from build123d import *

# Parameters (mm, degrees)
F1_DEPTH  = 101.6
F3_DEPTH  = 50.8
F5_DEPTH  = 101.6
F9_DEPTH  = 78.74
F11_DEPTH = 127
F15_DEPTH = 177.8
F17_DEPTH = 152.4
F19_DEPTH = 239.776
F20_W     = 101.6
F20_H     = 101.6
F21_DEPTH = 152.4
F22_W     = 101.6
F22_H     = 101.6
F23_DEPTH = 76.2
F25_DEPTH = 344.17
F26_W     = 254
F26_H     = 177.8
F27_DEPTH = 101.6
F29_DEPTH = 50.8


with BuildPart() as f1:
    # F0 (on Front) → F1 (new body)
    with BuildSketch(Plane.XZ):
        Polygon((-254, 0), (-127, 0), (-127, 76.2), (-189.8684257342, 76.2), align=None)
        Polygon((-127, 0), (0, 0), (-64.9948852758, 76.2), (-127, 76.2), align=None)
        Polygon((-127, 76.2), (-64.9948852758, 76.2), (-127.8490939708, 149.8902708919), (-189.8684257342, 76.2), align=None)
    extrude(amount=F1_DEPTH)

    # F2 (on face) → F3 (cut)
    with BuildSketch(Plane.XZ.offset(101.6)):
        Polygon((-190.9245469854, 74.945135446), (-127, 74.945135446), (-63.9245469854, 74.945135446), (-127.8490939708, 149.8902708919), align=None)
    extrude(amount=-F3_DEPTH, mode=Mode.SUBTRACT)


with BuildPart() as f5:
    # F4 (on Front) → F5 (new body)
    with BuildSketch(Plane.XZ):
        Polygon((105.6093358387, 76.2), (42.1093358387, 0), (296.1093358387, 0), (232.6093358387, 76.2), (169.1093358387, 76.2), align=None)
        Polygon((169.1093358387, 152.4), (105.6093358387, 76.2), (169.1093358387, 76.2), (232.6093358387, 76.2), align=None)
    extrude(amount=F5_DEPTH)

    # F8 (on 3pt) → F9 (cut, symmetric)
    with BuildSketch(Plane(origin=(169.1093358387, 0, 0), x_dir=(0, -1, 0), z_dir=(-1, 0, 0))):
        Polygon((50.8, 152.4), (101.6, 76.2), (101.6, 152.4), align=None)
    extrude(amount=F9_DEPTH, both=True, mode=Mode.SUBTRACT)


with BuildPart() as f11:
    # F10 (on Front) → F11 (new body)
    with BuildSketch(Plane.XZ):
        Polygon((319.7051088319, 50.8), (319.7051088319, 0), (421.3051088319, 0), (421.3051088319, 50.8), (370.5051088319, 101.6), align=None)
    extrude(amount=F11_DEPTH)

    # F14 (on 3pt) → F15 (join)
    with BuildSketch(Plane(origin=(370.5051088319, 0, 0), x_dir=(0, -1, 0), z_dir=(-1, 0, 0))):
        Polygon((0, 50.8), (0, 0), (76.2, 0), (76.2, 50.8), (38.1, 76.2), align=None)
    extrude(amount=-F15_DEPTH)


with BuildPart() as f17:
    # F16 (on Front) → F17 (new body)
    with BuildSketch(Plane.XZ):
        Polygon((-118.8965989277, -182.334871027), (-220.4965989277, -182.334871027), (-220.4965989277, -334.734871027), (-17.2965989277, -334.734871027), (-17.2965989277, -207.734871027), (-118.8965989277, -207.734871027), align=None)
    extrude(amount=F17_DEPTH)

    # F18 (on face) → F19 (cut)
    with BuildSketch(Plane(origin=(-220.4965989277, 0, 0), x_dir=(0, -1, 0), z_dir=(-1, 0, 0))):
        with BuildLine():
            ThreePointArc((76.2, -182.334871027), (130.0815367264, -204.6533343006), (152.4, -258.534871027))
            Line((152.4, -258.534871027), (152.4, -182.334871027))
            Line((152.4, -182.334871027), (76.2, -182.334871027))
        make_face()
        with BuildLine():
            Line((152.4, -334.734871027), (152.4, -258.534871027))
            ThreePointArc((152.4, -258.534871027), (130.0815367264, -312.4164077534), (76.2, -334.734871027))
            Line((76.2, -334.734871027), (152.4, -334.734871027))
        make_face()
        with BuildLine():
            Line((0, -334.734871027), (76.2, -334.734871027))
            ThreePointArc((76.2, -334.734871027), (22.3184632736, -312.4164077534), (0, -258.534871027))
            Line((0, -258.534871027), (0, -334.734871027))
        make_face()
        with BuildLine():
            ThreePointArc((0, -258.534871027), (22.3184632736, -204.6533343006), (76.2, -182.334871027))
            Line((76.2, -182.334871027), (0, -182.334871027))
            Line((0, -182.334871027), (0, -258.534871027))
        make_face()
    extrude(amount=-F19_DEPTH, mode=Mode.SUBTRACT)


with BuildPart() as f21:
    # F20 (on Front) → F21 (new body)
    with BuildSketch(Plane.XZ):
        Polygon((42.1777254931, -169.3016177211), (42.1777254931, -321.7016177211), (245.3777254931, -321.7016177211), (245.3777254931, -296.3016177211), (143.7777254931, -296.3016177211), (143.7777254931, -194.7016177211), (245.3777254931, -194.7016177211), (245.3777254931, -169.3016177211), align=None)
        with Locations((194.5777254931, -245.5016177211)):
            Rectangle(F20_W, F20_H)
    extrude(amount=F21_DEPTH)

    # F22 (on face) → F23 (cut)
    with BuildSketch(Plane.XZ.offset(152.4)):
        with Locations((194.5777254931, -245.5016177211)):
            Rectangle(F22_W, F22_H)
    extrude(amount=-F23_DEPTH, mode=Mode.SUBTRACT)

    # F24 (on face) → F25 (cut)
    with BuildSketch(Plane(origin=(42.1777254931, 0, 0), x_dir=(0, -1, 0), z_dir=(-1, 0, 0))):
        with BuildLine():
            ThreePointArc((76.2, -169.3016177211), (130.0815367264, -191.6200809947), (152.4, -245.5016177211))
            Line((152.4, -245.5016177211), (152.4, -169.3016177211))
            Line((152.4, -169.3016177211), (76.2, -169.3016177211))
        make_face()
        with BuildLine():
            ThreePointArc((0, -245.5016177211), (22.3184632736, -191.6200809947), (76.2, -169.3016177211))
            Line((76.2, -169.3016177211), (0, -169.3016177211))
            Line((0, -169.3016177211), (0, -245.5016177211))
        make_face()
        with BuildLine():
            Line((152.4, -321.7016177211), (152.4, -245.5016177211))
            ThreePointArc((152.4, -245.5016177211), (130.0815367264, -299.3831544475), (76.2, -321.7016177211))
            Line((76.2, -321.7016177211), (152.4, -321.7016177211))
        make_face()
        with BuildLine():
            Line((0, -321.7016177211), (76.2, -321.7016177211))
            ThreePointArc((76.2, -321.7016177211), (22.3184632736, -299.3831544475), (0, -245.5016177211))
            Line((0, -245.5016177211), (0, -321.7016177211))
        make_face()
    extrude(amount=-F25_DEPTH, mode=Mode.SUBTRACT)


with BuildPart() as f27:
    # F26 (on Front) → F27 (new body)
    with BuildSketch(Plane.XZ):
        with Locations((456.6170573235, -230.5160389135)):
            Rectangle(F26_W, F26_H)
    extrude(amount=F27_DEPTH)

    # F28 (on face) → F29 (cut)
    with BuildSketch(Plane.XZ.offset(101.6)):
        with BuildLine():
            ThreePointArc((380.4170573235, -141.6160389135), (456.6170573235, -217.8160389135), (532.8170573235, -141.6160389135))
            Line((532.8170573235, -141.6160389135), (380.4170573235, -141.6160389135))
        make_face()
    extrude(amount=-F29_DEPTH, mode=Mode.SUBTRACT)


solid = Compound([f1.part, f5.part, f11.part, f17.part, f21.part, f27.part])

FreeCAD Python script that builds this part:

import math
import FreeCAD as App
import Part
import Sketcher

V = App.Vector
Q = App.Units.Quantity

doc = App.newDocument("Part")
body = doc.addObject("PartDesign::Body", "Body")

# Sketch on XZ plane
sketch1 = body.newObject("Sketcher::SketchObject", "Sketch")
sketch1.AttachmentSupport = (doc.getObject("XZ_Plane"), [""])
sketch1.MapMode = "FlatFace"
sketch1.addGeometry([
    Part.LineSegment(V(-254, 0, 0), V(0, 0, 0)),
    Part.LineSegment(V(0, 0, 0), V(-128, 150, 0)),
    Part.LineSegment(V(-128, 150, 0), V(-254, 0, 0)),
], False)
sketch1.addConstraint([
    Sketcher.Constraint("Coincident", 0, 2, 1, 1),
    Sketcher.Constraint("Coincident", 1, 2, 2, 1),
    Sketcher.Constraint("Coincident", 2, 2, 0, 1),
    Sketcher.Constraint("Horizontal", 0),
    Sketcher.Constraint("Coincident", 0, 2, -1, 1),
    Sketcher.Constraint("DistanceX", 0, 1, 0, 2, Q("10 in")),
    Sketcher.Constraint("DistanceY", -1, 1, 1, 2, Q("149.890271 mm")),
    Sketcher.Constraint("Distance", 1, Q("197.008843 mm")),
])
pad1 = body.newObject("PartDesign::Pad", "Pad")
pad1.Profile = sketch1
pad1.Length = Q("4 in")

# Sketch on XZ plane
sketch2 = body.newObject("Sketcher::SketchObject", "Sketch001")
sketch2.AttachmentSupport = (doc.getObject("XZ_Plane"), [""])
sketch2.MapMode = "FlatFace"
sketch2.AttachmentOffset = App.Placement(V(0, 0, 4 * 25.4), App.Rotation())
sketch2.addGeometry([
    Part.LineSegment(V(-191, 75, 0), V(-64, 75, 0)),
    Part.LineSegment(V(-64, 75, 0), V(-128, 150, 0)),
    Part.LineSegment(V(-128, 150, 0), V(-191, 75, 0)),
], False)
sketch2.addConstraint([
    Sketcher.Constraint("Coincident", 0, 2, 1, 1),
    Sketcher.Constraint("Coincident", 1, 2, 2, 1),
    Sketcher.Constraint("Coincident", 2, 2, 0, 1),
    Sketcher.Constraint("Horizontal", 0),
    Sketcher.Constraint("DistanceX", 0, 1, 0, 2, Q("5 in")),
    Sketcher.Constraint("Distance", 1, Q("98.504421 mm")),
    Sketcher.Constraint("Distance", 2, Q("97.955531 mm")),
    Sketcher.Constraint("DistanceY", -1, 1, 1, 2, Q("149.890271 mm")),
    Sketcher.Constraint("DistanceX", 0, 2, -1, 1, Q("63.924547 mm")),
])
pocket1 = body.newObject("PartDesign::Pocket", "Pocket")
pocket1.Profile = sketch2
pocket1.Length = Q("2 in")
body2 = doc.addObject("PartDesign::Body", "Body001")

# Sketch on XZ plane
sketch3 = body2.newObject("Sketcher::SketchObject", "Sketch002")
sketch3.AttachmentSupport = (doc.getObject("XZ_Plane001"), [""])
sketch3.MapMode = "FlatFace"
sketch3.addGeometry([
    Part.LineSegment(V(42, 0, 0), V(296, 0, 0)),
    Part.LineSegment(V(296, 0, 0), V(169, 152, 0)),
    Part.LineSegment(V(169, 152, 0), V(42, 0, 0)),
], False)
sketch3.addConstraint([
    Sketcher.Constraint("Coincident", 0, 2, 1, 1),
    Sketcher.Constraint("Coincident", 1, 2, 2, 1),
    Sketcher.Constraint("Coincident", 2, 2, 0, 1),
    Sketcher.Constraint("Horizontal", 0),
    Sketcher.Constraint("PointOnObject", 0, 2, -1),
    Sketcher.Constraint("Equal", 1, 2),
    Sketcher.Constraint("DistanceX", 0, 1, 0, 2, Q("10 in")),
    Sketcher.Constraint("DistanceY", -1, 1, 1, 2, Q("6 in")),
    Sketcher.Constraint("DistanceX", -1, 1, 0, 2, Q("296.109336 mm")),
])
pad2 = body2.newObject("PartDesign::Pad", "Pad001")
pad2.Profile = sketch3
pad2.Length = Q("4 in")

# Sketch on YZ plane
sketch4 = body2.newObject("Sketcher::SketchObject", "Sketch003")
sketch4.AttachmentSupport = (doc.getObject("YZ_Plane001"), [""])
sketch4.MapMode = "FlatFace"
sketch4.AttachmentOffset = App.Placement(V(0, 0, 169.109336), App.Rotation())
sketch4.addGeometry([
    Part.LineSegment(V(-51, 152, 0), V(-102, 76, 0)),
    Part.LineSegment(V(-102, 76, 0), V(-102, 152, 0)),
    Part.LineSegment(V(-102, 152, 0), V(-51, 152, 0)),
], False)
sketch4.addConstraint([
    Sketcher.Constraint("Coincident", 0, 2, 1, 1),
    Sketcher.Constraint("Coincident", 1, 2, 2, 1),
    Sketcher.Constraint("Coincident", 2, 2, 0, 1),
    Sketcher.Constraint("Vertical", 1),
    Sketcher.Constraint("Horizontal", 2),
    Sketcher.Constraint("DistanceX", 2, 1, 2, 2, Q("2 in")),
    Sketcher.Constraint("DistanceY", 1, 1, 1, 2, Q("3 in")),
    Sketcher.Constraint("DistanceX", 0, 2, -1, 1, Q("4 in")),
    Sketcher.Constraint("DistanceY", -1, 1, 0, 2, Q("3 in")),
])
pocket2 = body2.newObject("PartDesign::Pocket", "Pocket001")
pocket2.Profile = sketch4
pocket2.Length = Q("6.2 in")
pocket2.Midplane = True
body3 = doc.addObject("PartDesign::Body", "Body002")

# Sketch on XZ plane
sketch5 = body3.newObject("Sketcher::SketchObject", "Sketch004")
sketch5.AttachmentSupport = (doc.getObject("XZ_Plane002"), [""])
sketch5.MapMode = "FlatFace"
sketch5.addGeometry([
    Part.LineSegment(V(320, 51, 0), V(320, 0, 0)),  # 0
    Part.LineSegment(V(320, 0, 0), V(421, 0, 0)),  # 1
    Part.LineSegment(V(421, 0, 0), V(421, 51, 0)),  # 2
    Part.LineSegment(V(421, 51, 0), V(371, 102, 0)),  # 3
    Part.LineSegment(V(371, 102, 0), V(320, 51, 0)),  # 4
], False)
sketch5.addConstraint([
    Sketcher.Constraint("Coincident", 0, 2, 1, 1),
    Sketcher.Constraint("Coincident", 1, 2, 2, 1),
    Sketcher.Constraint("Coincident", 2, 2, 3, 1),
    Sketcher.Constraint("Coincident", 3, 2, 4, 1),
    Sketcher.Constraint("Coincident", 4, 2, 0, 1),
    Sketcher.Constraint("Vertical", 0),
    Sketcher.Constraint("Horizontal", 1),
    Sketcher.Constraint("Vertical", 2),
    Sketcher.Constraint("PointOnObject", 0, 2, -1),
    Sketcher.Constraint("Perpendicular", 3, 4),
    Sketcher.Constraint("Horizontal", 2, 2, 4, 2),
    Sketcher.Constraint("Equal", 3, 4),
    Sketcher.Constraint("DistanceX", 1, 1, 1, 2, Q("4 in")),
    Sketcher.Constraint("DistanceY", 0, 2, 0, 1, Q("2 in")),
    Sketcher.Constraint("DistanceX", -1, 1, 0, 2, Q("319.705109 mm")),
])
pad3 = body3.newObject("PartDesign::Pad", "Pad002")
pad3.Profile = sketch5
pad3.Length = Q("5 in")

# Sketch on YZ plane
sketch6 = body3.newObject("Sketcher::SketchObject", "Sketch005")
sketch6.AttachmentSupport = (doc.getObject("YZ_Plane002"), [""])
sketch6.MapMode = "FlatFace"
sketch6.AttachmentOffset = App.Placement(V(0, 0, 370.505109), App.Rotation())
sketch6.addGeometry([
    Part.LineSegment(V(0, 51, 0), V(0, 0, 0)),  # 0
    Part.LineSegment(V(0, 0, 0), V(-76, 0, 0)),  # 1
    Part.LineSegment(V(-76, 0, 0), V(-76, 51, 0)),  # 2
    Part.LineSegment(V(-76, 51, 0), V(-38, 76, 0)),  # 3
    Part.LineSegment(V(-38, 76, 0), V(0, 51, 0)),  # 4
], False)
sketch6.addConstraint([
    Sketcher.Constraint("Coincident", 0, 2, 1, 1),
    Sketcher.Constraint("Coincident", 1, 2, 2, 1),
    Sketcher.Constraint("Coincident", 2, 2, 3, 1),
    Sketcher.Constraint("Coincident", 3, 2, 4, 1),
    Sketcher.Constraint("Coincident", 4, 2, 0, 1),
    Sketcher.Constraint("Vertical", 0),
    Sketcher.Constraint("Horizontal", 1),
    Sketcher.Constraint("Vertical", 2),
    Sketcher.Constraint("Coincident", 0, 2, -1, 1),
    Sketcher.Constraint("Horizontal", 2, 2, 4, 2),
    Sketcher.Constraint("Equal", 3, 4),
    Sketcher.Constraint("DistanceX", 1, 2, 1, 1, Q("3 in")),
    Sketcher.Constraint("DistanceY", 0, 2, 0, 1, Q("2 in")),
    Sketcher.Constraint("DistanceY", -1, 1, 3, 2, Q("3 in")),
])
pad4 = body3.newObject("PartDesign::Pad", "Pad003")
pad4.Profile = sketch6
pad4.Length = Q("7 in")
body4 = doc.addObject("PartDesign::Body", "Body003")

# Sketch on XZ plane
sketch7 = body4.newObject("Sketcher::SketchObject", "Sketch006")
sketch7.AttachmentSupport = (doc.getObject("XZ_Plane003"), [""])
sketch7.MapMode = "FlatFace"
sketch7.addGeometry([
    Part.LineSegment(V(-119, -182, 0), V(-220, -182, 0)),  # 0
    Part.LineSegment(V(-220, -182, 0), V(-220, -335, 0)),  # 1
    Part.LineSegment(V(-220, -335, 0), V(-17, -335, 0)),  # 2
    Part.LineSegment(V(-17, -335, 0), V(-17, -208, 0)),  # 3
    Part.LineSegment(V(-17, -208, 0), V(-119, -208, 0)),  # 4
    Part.LineSegment(V(-119, -208, 0), V(-119, -182, 0)),  # 5
], False)
sketch7.addConstraint([
    Sketcher.Constraint("Coincident", 0, 2, 1, 1),
    Sketcher.Constraint("Coincident", 1, 2, 2, 1),
    Sketcher.Constraint("Coincident", 2, 2, 3, 1),
    Sketcher.Constraint("Coincident", 3, 2, 4, 1),
    Sketcher.Constraint("Coincident", 4, 2, 5, 1),
    Sketcher.Constraint("Coincident", 5, 2, 0, 1),
    Sketcher.Constraint("Horizontal", 0),
    Sketcher.Constraint("Vertical", 1),
    Sketcher.Constraint("Horizontal", 2),
    Sketcher.Constraint("Vertical", 3),
    Sketcher.Constraint("Horizontal", 4),
    Sketcher.Constraint("Vertical", 5),
    Sketcher.Constraint("Equal", 0, 4),
    Sketcher.Constraint("DistanceX", 0, 2, 0, 1, Q("4 in")),
    Sketcher.Constraint("DistanceY", 1, 2, 1, 1, Q("6 in")),
    Sketcher.Constraint("DistanceY", 3, 1, 3, 2, Q("5 in")),
    Sketcher.Constraint("DistanceX", 0, 2, -1, 1, Q("220.496599 mm")),
    Sketcher.Constraint("DistanceY", 0, 2, -1, 1, Q("182.334871 mm")),
])
pad5 = body4.newObject("PartDesign::Pad", "Pad004")
pad5.Profile = sketch7
pad5.Length = Q("6 in")

# Sketch on YZ plane
sketch8 = body4.newObject("Sketcher::SketchObject", "Sketch007")
sketch8.AttachmentSupport = (doc.getObject("YZ_Plane003"), [""])
sketch8.MapMode = "FlatFace"
sketch8.AttachmentOffset = App.Placement(V(0, 0, -220.496599), App.Rotation())
sketch8.addGeometry([
    Part.ArcOfCircle(Part.Circle(V(-76, -259, 0), V(0, 0, 1), 76), math.radians(90), math.radians(180)),  # 0
    Part.LineSegment(V(-152, -259, 0), V(-152, -182, 0)),  # 1
    Part.LineSegment(V(-152, -182, 0), V(-76, -182, 0)),  # 2
    Part.LineSegment(V(-152, -335, 0), V(-152, -259, 0)),  # 3
    Part.ArcOfCircle(Part.Circle(V(-76, -259, 0), V(0, 0, 1), 76), math.radians(180), math.radians(270)),  # 4
    Part.LineSegment(V(-76, -335, 0), V(-152, -335, 0)),  # 5
    Part.LineSegment(V(0, -335, 0), V(-76, -335, 0)),  # 6
    Part.ArcOfCircle(Part.Circle(V(-76, -259, 0), V(0, 0, 1), 76), math.radians(-90), math.radians(0)),  # 7
    Part.LineSegment(V(0, -259, 0), V(0, -335, 0)),  # 8
    Part.ArcOfCircle(Part.Circle(V(-76, -259, 0), V(0, 0, 1), 76), math.radians(0), math.radians(90)),  # 9
    Part.LineSegment(V(-76, -182, 0), V(0, -182, 0)),  # 10
    Part.LineSegment(V(0, -182, 0), V(0, -259, 0)),  # 11
], False)
sketch8.addConstraint([
    Sketcher.Constraint("Tangent", 0, 2, 1, 1),
    Sketcher.Constraint("Coincident", 1, 2, 2, 1),
    Sketcher.Constraint("Tangent", 2, 2, 0, 1),
    Sketcher.Constraint("Tangent", 3, 2, 4, 1),
    Sketcher.Constraint("Tangent", 4, 2, 5, 1),
    Sketcher.Constraint("Coincident", 5, 2, 3, 1),
    Sketcher.Constraint("Tangent", 6, 2, 7, 1),
    Sketcher.Constraint("Tangent", 7, 2, 8, 1),
    Sketcher.Constraint("Coincident", 8, 2, 6, 1),
    Sketcher.Constraint("Tangent", 9, 2, 10, 1),
    Sketcher.Constraint("Coincident", 10, 2, 11, 1),
    Sketcher.Constraint("Tangent", 11, 2, 9, 1),
    Sketcher.Constraint("Vertical", 1),
    Sketcher.Constraint("Horizontal", 2),
    Sketcher.Constraint("Vertical", 3),
    Sketcher.Constraint("Horizontal", 5),
    Sketcher.Constraint("Horizontal", 6),
    Sketcher.Constraint("Vertical", 8),
    Sketcher.Constraint("Horizontal", 10),
    Sketcher.Constraint("Vertical", 11),
    Sketcher.Constraint("Coincident", 4, 3, 0, 3),
    Sketcher.Constraint("Coincident", 7, 3, 0, 3),
    Sketcher.Constraint("Coincident", 9, 3, 0, 3),
    Sketcher.Constraint("Equal", 0, 4),
    Sketcher.Constraint("Equal", 4, 7),
    Sketcher.Constraint("Equal", 7, 9),
    Sketcher.Constraint("PointOnObject", 7, 2, -2),
    Sketcher.Constraint("Radius", 0, Q("3 in")),
    Sketcher.Constraint("DistanceY", 0, 3, -1, 1, Q("258.534871 mm")),
])
pocket3 = body4.newObject("PartDesign::Pocket", "Pocket002")
pocket3.Profile = sketch8
pocket3.Length = Q("9.44 in")
pocket3.Reversed = True
body5 = doc.addObject("PartDesign::Body", "Body004")

# Sketch on XZ plane
sketch9 = body5.newObject("Sketcher::SketchObject", "Sketch008")
sketch9.AttachmentSupport = (doc.getObject("XZ_Plane004"), [""])
sketch9.MapMode = "FlatFace"
sketch9.addGeometry([
    Part.LineSegment(V(42, -169, 0), V(42, -322, 0)),
    Part.LineSegment(V(42, -322, 0), V(245, -322, 0)),
    Part.LineSegment(V(245, -322, 0), V(245, -169, 0)),
    Part.LineSegment(V(245, -169, 0), V(42, -169, 0)),
], False)
sketch9.addConstraint([
    Sketcher.Constraint("Coincident", 0, 2, 1, 1),
    Sketcher.Constraint("Coincident", 1, 2, 2, 1),
    Sketcher.Constraint("Coincident", 2, 2, 3, 1),
    Sketcher.Constraint("Coincident", 3, 2, 0, 1),
    Sketcher.Constraint("Vertical", 0),
    Sketcher.Constraint("Horizontal", 1),
    Sketcher.Constraint("Vertical", 2),
    Sketcher.Constraint("Horizontal", 3),
    Sketcher.Constraint("DistanceX", 1, 1, 1, 2, Q("8 in")),
    Sketcher.Constraint("DistanceY", 0, 2, 0, 1, Q("6 in")),
    Sketcher.Constraint("DistanceX", -1, 1, 0, 2, Q("42.177725 mm")),
    Sketcher.Constraint("DistanceY", 0, 2, -1, 1, Q("321.701618 mm")),
])
pad6 = body5.newObject("PartDesign::Pad", "Pad005")
pad6.Profile = sketch9
pad6.Length = Q("6 in")

# Sketch on XZ plane
sketch10 = body5.newObject("Sketcher::SketchObject", "Sketch009")
sketch10.AttachmentSupport = (doc.getObject("XZ_Plane004"), [""])
sketch10.MapMode = "FlatFace"
sketch10.AttachmentOffset = App.Placement(V(0, 0, 6 * 25.4), App.Rotation())
sketch10.addGeometry([
    Part.LineSegment(V(144, -195, 0), V(144, -296, 0)),
    Part.LineSegment(V(144, -296, 0), V(245, -296, 0)),
    Part.LineSegment(V(245, -296, 0), V(245, -195, 0)),
    Part.LineSegment(V(245, -195, 0), V(144, -195, 0)),
], False)
sketch10.addConstraint([
    Sketcher.Constraint("Coincident", 0, 2, 1, 1),
    Sketcher.Constraint("Coincident", 1, 2, 2, 1),
    Sketcher.Constraint("Coincident", 2, 2, 3, 1),
    Sketcher.Constraint("Coincident", 3, 2, 0, 1),
    Sketcher.Constraint("Vertical", 0),
    Sketcher.Constraint("Horizontal", 1),
    Sketcher.Constraint("Vertical", 2),
    Sketcher.Constraint("Horizontal", 3),
    Sketcher.Constraint("Equal", 3, 0),
    Sketcher.Constraint("DistanceX", 1, 1, 1, 2, Q("4 in")),
    Sketcher.Constraint("DistanceX", -1, 1, 0, 2, Q("143.777725 mm")),
    Sketcher.Constraint("DistanceY", 0, 2, -1, 1, Q("296.301618 mm")),
])
pocket4 = body5.newObject("PartDesign::Pocket", "Pocket003")
pocket4.Profile = sketch10
pocket4.Length = Q("3 in")

# Sketch on YZ plane
sketch11 = body5.newObject("Sketcher::SketchObject", "Sketch010")
sketch11.AttachmentSupport = (doc.getObject("YZ_Plane004"), [""])
sketch11.MapMode = "FlatFace"
sketch11.AttachmentOffset = App.Placement(V(0, 0, 42.177725), App.Rotation())
sketch11.addGeometry([
    Part.ArcOfCircle(Part.Circle(V(-76, -246, 0), V(0, 0, 1), 76), math.radians(90), math.radians(180)),  # 0
    Part.LineSegment(V(-152, -246, 0), V(-152, -169, 0)),  # 1
    Part.LineSegment(V(-152, -169, 0), V(-76, -169, 0)),  # 2
    Part.ArcOfCircle(Part.Circle(V(-76, -246, 0), V(0, 0, 1), 76), math.radians(0), math.radians(90)),  # 3
    Part.LineSegment(V(-76, -169, 0), V(0, -169, 0)),  # 4
    Part.LineSegment(V(0, -169, 0), V(0, -246, 0)),  # 5
    Part.LineSegment(V(-152, -322, 0), V(-152, -246, 0)),  # 6
    Part.ArcOfCircle(Part.Circle(V(-76, -246, 0), V(0, 0, 1), 76), math.radians(180), math.radians(270)),  # 7
    Part.LineSegment(V(-76, -322, 0), V(-152, -322, 0)),  # 8
    Part.LineSegment(V(0, -322, 0), V(-76, -322, 0)),  # 9
    Part.ArcOfCircle(Part.Circle(V(-76, -246, 0), V(0, 0, 1), 76), math.radians(-90), math.radians(0)),  # 10
    Part.LineSegment(V(0, -246, 0), V(0, -322, 0)),  # 11
], False)
sketch11.addConstraint([
    Sketcher.Constraint("Tangent", 0, 2, 1, 1),
    Sketcher.Constraint("Coincident", 1, 2, 2, 1),
    Sketcher.Constraint("Tangent", 2, 2, 0, 1),
    Sketcher.Constraint("Tangent", 3, 2, 4, 1),
    Sketcher.Constraint("Coincident", 4, 2, 5, 1),
    Sketcher.Constraint("Tangent", 5, 2, 3, 1),
    Sketcher.Constraint("Tangent", 6, 2, 7, 1),
    Sketcher.Constraint("Tangent", 7, 2, 8, 1),
    Sketcher.Constraint("Coincident", 8, 2, 6, 1),
    Sketcher.Constraint("Tangent", 9, 2, 10, 1),
    Sketcher.Constraint("Tangent", 10, 2, 11, 1),
    Sketcher.Constraint("Coincident", 11, 2, 9, 1),
    Sketcher.Constraint("Vertical", 1),
    Sketcher.Constraint("Horizontal", 2),
    Sketcher.Constraint("Horizontal", 4),
    Sketcher.Constraint("Vertical", 5),
    Sketcher.Constraint("Vertical", 6),
    Sketcher.Constraint("Horizontal", 8),
    Sketcher.Constraint("Horizontal", 9),
    Sketcher.Constraint("Vertical", 11),
    Sketcher.Constraint("Coincident", 3, 3, 0, 3),
    Sketcher.Constraint("Coincident", 7, 3, 0, 3),
    Sketcher.Constraint("Coincident", 10, 3, 0, 3),
    Sketcher.Constraint("Equal", 0, 3),
    Sketcher.Constraint("Equal", 3, 7),
    Sketcher.Constraint("Equal", 7, 10),
    Sketcher.Constraint("PointOnObject", 4, 2, -2),
    Sketcher.Constraint("Radius", 0, Q("3 in")),
    Sketcher.Constraint("DistanceY", 0, 3, -1, 1, Q("245.501618 mm")),
])
pocket5 = body5.newObject("PartDesign::Pocket", "Pocket004")
pocket5.Profile = sketch11
pocket5.Length = Q("13.55 in")
pocket5.Reversed = True
body6 = doc.addObject("PartDesign::Body", "Body005")

# Sketch on XZ plane
sketch12 = body6.newObject("Sketcher::SketchObject", "Sketch011")
sketch12.AttachmentSupport = (doc.getObject("XZ_Plane005"), [""])
sketch12.MapMode = "FlatFace"
sketch12.addGeometry([
    Part.LineSegment(V(330, -142, 0), V(330, -319, 0)),
    Part.LineSegment(V(330, -319, 0), V(584, -319, 0)),
    Part.LineSegment(V(584, -319, 0), V(584, -142, 0)),
    Part.LineSegment(V(584, -142, 0), V(330, -142, 0)),
], False)
sketch12.addConstraint([
    Sketcher.Constraint("Coincident", 0, 2, 1, 1),
    Sketcher.Constraint("Coincident", 1, 2, 2, 1),
    Sketcher.Constraint("Coincident", 2, 2, 3, 1),
    Sketcher.Constraint("Coincident", 3, 2, 0, 1),
    Sketcher.Constraint("Vertical", 0),
    Sketcher.Constraint("Horizontal", 1),
    Sketcher.Constraint("Vertical", 2),
    Sketcher.Constraint("Horizontal", 3),
    Sketcher.Constraint("DistanceX", 1, 1, 1, 2, Q("10 in")),
    Sketcher.Constraint("DistanceY", 0, 2, 0, 1, Q("7 in")),
    Sketcher.Constraint("DistanceY", 0, 2, -1, 1, Q("319.416039 mm")),
    Sketcher.Constraint("DistanceX", -1, 1, 0, 2, Q("329.617057 mm")),
])
pad7 = body6.newObject("PartDesign::Pad", "Pad006")
pad7.Profile = sketch12
pad7.Length = Q("4 in")

# Sketch on XZ plane
sketch13 = body6.newObject("Sketcher::SketchObject", "Sketch012")
sketch13.AttachmentSupport = (doc.getObject("XZ_Plane005"), [""])
sketch13.MapMode = "FlatFace"
sketch13.AttachmentOffset = App.Placement(V(0, 0, 4 * 25.4), App.Rotation())
sketch13.addGeometry([
    Part.ArcOfCircle(Part.Circle(V(457, -142, 0), V(0, 0, 1), 76), math.radians(180), math.radians(360)),
    Part.LineSegment(V(533, -142, 0), V(380, -142, 0)),
], False)
sketch13.addConstraint([
    Sketcher.Constraint("Coincident", 0, 1, 1, 2),
    Sketcher.Constraint("Coincident", 1, 1, 0, 2),
    Sketcher.Constraint("Horizontal", 1),
    Sketcher.Constraint("Radius", 0, Q("3 in")),
    Sketcher.Constraint("DistanceY", 0, 3, -1, 1, Q("141.616039 mm")),
    Sketcher.Constraint("DistanceY", 0, 1, -1, 1, Q("141.616039 mm")),
    Sketcher.Constraint("DistanceX", -1, 1, 0, 3, Q("456.617057 mm")),
])
pocket6 = body6.newObject("PartDesign::Pocket", "Pocket005")
pocket6.Profile = sketch13
pocket6.Length = Q("2 in")

doc.recompute()
